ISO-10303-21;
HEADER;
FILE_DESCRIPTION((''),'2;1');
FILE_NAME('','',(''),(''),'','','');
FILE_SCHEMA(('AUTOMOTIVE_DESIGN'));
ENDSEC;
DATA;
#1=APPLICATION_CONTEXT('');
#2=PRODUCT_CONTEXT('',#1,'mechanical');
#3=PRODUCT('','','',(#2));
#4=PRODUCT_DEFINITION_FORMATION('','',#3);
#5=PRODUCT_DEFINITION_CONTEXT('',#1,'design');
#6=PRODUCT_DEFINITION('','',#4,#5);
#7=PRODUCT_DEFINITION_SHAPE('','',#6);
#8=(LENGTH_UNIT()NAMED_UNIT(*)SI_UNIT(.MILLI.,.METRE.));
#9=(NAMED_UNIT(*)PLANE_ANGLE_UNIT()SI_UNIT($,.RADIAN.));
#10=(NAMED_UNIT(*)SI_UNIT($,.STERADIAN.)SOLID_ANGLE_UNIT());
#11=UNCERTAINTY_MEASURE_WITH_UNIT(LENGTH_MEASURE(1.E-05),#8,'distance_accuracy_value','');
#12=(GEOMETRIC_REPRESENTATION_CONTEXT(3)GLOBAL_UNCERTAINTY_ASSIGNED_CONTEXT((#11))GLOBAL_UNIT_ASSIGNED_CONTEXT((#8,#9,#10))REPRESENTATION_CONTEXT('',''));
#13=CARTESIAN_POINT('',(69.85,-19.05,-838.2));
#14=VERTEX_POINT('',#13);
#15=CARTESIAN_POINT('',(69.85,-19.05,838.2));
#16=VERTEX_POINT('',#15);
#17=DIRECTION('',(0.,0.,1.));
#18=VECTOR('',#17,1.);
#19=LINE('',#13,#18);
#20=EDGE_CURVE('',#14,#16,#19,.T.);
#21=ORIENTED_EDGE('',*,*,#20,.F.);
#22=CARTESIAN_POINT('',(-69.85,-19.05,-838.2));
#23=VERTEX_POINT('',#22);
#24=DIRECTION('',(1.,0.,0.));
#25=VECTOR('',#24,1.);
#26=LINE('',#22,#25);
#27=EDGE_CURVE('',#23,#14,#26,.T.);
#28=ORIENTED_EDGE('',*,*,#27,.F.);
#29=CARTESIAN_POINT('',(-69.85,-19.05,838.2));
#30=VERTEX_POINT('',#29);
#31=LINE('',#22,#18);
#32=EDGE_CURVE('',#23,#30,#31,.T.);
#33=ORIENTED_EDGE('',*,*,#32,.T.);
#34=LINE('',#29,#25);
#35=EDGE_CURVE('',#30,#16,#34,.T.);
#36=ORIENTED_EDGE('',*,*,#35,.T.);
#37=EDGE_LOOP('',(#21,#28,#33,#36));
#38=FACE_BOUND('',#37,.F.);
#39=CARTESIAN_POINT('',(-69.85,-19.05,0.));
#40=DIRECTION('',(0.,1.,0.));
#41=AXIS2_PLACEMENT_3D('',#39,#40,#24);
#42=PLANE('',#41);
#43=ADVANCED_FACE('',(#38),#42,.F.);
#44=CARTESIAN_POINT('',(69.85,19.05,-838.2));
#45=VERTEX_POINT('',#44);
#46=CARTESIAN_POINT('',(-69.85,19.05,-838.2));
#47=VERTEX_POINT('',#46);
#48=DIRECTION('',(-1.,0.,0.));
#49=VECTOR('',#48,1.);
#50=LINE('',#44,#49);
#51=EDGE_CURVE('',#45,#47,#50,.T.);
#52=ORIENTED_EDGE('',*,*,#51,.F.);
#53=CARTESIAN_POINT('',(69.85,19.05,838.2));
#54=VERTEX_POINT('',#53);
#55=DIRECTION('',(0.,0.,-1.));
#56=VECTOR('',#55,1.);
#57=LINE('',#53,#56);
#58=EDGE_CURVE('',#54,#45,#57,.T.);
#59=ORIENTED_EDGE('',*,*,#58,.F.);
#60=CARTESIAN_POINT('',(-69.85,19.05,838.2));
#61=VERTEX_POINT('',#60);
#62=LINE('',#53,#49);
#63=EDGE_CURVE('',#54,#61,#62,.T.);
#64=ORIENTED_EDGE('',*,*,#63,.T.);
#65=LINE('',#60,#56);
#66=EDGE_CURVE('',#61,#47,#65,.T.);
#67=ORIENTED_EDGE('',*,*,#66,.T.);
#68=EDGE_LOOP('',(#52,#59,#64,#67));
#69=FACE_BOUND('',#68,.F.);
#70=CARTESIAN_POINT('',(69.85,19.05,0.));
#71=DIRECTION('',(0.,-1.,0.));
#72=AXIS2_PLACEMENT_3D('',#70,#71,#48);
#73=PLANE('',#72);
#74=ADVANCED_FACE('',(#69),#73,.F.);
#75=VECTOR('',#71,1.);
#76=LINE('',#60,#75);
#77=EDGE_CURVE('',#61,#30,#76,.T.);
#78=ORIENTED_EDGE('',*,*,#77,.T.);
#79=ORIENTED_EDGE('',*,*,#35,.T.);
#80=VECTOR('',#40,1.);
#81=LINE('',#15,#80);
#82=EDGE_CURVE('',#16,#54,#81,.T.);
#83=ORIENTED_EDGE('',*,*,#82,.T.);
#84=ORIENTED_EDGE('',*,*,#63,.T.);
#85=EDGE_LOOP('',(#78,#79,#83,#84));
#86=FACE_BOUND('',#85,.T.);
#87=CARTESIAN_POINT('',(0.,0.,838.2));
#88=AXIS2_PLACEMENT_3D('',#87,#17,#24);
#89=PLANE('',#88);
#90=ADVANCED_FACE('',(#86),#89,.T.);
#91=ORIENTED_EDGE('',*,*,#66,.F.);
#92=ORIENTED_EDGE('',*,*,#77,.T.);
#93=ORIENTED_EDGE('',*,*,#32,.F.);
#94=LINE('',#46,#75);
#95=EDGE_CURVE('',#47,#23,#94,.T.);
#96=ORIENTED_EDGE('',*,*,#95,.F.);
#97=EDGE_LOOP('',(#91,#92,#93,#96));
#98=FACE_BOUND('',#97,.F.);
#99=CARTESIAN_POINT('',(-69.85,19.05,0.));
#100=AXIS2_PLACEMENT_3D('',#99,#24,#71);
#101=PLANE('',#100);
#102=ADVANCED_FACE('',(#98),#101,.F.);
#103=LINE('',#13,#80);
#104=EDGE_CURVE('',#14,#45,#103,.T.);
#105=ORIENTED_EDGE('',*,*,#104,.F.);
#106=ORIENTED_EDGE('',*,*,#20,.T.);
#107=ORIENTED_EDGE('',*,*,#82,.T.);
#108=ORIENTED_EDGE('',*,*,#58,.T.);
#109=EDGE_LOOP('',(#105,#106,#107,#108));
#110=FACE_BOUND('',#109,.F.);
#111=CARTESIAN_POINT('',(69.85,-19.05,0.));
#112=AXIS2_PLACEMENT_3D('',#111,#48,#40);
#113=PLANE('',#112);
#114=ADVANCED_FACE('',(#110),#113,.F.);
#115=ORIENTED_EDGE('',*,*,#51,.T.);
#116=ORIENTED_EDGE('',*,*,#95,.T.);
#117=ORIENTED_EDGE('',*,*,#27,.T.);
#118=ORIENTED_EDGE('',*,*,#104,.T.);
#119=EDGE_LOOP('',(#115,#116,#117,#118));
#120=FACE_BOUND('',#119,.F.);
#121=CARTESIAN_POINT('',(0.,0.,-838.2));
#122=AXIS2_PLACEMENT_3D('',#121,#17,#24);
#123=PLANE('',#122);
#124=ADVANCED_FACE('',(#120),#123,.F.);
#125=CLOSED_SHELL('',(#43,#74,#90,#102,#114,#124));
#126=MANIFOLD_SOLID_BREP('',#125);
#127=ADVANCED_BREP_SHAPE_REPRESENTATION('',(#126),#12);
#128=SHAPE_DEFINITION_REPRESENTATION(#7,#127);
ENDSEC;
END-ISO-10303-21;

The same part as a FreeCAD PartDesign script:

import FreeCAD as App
import Part
import Sketcher
from FreeCAD import Vector
Q = App.Units.Quantity


def add_polygon(sketch, points):
    """Adds a closed chain of lines whose ends are joined by coincident constraints."""
    first, n = sketch.GeometryCount, len(points)
    for a, b in zip(points, points[1:] + points[:1]):
        sketch.addGeometry(Part.LineSegment(App.Vector(*a, 0), App.Vector(*b, 0)), False)
    for i in range(n):
        sketch.addConstraint(Sketcher.Constraint("Coincident", first + i, 2, first + (i + 1) % n, 1))

doc = App.newDocument("Part")
body = doc.addObject("PartDesign::Body", "Body")

sketch1 = doc.addObject("Sketcher::SketchObject", "Sketch")
body.addObject(sketch1)
sketch1.AttachmentSupport = (doc.XY_Plane, [""])
sketch1.MapMode = "FlatFace"
add_polygon(sketch1, [(-70, 19), (-70, -19), (70, -19), (70, 19)])
sketch1.addConstraint(Sketcher.Constraint("Vertical", 0))
sketch1.addConstraint(Sketcher.Constraint("Horizontal", 1))
sketch1.addConstraint(Sketcher.Constraint("Vertical", 2))
sketch1.addConstraint(Sketcher.Constraint("Horizontal", 3))
sketch1.addConstraint(Sketcher.Constraint("Symmetric", 0, 2, 2, 2, -1, 1))
sketch1.addConstraint(Sketcher.Constraint("DistanceX", 1, 1, 1, 2, Q("5.5 in")))
sketch1.addConstraint(Sketcher.Constraint("DistanceY", 0, 2, 0, 1, Q("1.5 in")))
pad1 = doc.addObject("PartDesign::Pad", "Pad")
body.addObject(pad1)
pad1.Profile = sketch1
pad1.Length = Q("66 in")
pad1.Midplane = True

doc.recompute()
